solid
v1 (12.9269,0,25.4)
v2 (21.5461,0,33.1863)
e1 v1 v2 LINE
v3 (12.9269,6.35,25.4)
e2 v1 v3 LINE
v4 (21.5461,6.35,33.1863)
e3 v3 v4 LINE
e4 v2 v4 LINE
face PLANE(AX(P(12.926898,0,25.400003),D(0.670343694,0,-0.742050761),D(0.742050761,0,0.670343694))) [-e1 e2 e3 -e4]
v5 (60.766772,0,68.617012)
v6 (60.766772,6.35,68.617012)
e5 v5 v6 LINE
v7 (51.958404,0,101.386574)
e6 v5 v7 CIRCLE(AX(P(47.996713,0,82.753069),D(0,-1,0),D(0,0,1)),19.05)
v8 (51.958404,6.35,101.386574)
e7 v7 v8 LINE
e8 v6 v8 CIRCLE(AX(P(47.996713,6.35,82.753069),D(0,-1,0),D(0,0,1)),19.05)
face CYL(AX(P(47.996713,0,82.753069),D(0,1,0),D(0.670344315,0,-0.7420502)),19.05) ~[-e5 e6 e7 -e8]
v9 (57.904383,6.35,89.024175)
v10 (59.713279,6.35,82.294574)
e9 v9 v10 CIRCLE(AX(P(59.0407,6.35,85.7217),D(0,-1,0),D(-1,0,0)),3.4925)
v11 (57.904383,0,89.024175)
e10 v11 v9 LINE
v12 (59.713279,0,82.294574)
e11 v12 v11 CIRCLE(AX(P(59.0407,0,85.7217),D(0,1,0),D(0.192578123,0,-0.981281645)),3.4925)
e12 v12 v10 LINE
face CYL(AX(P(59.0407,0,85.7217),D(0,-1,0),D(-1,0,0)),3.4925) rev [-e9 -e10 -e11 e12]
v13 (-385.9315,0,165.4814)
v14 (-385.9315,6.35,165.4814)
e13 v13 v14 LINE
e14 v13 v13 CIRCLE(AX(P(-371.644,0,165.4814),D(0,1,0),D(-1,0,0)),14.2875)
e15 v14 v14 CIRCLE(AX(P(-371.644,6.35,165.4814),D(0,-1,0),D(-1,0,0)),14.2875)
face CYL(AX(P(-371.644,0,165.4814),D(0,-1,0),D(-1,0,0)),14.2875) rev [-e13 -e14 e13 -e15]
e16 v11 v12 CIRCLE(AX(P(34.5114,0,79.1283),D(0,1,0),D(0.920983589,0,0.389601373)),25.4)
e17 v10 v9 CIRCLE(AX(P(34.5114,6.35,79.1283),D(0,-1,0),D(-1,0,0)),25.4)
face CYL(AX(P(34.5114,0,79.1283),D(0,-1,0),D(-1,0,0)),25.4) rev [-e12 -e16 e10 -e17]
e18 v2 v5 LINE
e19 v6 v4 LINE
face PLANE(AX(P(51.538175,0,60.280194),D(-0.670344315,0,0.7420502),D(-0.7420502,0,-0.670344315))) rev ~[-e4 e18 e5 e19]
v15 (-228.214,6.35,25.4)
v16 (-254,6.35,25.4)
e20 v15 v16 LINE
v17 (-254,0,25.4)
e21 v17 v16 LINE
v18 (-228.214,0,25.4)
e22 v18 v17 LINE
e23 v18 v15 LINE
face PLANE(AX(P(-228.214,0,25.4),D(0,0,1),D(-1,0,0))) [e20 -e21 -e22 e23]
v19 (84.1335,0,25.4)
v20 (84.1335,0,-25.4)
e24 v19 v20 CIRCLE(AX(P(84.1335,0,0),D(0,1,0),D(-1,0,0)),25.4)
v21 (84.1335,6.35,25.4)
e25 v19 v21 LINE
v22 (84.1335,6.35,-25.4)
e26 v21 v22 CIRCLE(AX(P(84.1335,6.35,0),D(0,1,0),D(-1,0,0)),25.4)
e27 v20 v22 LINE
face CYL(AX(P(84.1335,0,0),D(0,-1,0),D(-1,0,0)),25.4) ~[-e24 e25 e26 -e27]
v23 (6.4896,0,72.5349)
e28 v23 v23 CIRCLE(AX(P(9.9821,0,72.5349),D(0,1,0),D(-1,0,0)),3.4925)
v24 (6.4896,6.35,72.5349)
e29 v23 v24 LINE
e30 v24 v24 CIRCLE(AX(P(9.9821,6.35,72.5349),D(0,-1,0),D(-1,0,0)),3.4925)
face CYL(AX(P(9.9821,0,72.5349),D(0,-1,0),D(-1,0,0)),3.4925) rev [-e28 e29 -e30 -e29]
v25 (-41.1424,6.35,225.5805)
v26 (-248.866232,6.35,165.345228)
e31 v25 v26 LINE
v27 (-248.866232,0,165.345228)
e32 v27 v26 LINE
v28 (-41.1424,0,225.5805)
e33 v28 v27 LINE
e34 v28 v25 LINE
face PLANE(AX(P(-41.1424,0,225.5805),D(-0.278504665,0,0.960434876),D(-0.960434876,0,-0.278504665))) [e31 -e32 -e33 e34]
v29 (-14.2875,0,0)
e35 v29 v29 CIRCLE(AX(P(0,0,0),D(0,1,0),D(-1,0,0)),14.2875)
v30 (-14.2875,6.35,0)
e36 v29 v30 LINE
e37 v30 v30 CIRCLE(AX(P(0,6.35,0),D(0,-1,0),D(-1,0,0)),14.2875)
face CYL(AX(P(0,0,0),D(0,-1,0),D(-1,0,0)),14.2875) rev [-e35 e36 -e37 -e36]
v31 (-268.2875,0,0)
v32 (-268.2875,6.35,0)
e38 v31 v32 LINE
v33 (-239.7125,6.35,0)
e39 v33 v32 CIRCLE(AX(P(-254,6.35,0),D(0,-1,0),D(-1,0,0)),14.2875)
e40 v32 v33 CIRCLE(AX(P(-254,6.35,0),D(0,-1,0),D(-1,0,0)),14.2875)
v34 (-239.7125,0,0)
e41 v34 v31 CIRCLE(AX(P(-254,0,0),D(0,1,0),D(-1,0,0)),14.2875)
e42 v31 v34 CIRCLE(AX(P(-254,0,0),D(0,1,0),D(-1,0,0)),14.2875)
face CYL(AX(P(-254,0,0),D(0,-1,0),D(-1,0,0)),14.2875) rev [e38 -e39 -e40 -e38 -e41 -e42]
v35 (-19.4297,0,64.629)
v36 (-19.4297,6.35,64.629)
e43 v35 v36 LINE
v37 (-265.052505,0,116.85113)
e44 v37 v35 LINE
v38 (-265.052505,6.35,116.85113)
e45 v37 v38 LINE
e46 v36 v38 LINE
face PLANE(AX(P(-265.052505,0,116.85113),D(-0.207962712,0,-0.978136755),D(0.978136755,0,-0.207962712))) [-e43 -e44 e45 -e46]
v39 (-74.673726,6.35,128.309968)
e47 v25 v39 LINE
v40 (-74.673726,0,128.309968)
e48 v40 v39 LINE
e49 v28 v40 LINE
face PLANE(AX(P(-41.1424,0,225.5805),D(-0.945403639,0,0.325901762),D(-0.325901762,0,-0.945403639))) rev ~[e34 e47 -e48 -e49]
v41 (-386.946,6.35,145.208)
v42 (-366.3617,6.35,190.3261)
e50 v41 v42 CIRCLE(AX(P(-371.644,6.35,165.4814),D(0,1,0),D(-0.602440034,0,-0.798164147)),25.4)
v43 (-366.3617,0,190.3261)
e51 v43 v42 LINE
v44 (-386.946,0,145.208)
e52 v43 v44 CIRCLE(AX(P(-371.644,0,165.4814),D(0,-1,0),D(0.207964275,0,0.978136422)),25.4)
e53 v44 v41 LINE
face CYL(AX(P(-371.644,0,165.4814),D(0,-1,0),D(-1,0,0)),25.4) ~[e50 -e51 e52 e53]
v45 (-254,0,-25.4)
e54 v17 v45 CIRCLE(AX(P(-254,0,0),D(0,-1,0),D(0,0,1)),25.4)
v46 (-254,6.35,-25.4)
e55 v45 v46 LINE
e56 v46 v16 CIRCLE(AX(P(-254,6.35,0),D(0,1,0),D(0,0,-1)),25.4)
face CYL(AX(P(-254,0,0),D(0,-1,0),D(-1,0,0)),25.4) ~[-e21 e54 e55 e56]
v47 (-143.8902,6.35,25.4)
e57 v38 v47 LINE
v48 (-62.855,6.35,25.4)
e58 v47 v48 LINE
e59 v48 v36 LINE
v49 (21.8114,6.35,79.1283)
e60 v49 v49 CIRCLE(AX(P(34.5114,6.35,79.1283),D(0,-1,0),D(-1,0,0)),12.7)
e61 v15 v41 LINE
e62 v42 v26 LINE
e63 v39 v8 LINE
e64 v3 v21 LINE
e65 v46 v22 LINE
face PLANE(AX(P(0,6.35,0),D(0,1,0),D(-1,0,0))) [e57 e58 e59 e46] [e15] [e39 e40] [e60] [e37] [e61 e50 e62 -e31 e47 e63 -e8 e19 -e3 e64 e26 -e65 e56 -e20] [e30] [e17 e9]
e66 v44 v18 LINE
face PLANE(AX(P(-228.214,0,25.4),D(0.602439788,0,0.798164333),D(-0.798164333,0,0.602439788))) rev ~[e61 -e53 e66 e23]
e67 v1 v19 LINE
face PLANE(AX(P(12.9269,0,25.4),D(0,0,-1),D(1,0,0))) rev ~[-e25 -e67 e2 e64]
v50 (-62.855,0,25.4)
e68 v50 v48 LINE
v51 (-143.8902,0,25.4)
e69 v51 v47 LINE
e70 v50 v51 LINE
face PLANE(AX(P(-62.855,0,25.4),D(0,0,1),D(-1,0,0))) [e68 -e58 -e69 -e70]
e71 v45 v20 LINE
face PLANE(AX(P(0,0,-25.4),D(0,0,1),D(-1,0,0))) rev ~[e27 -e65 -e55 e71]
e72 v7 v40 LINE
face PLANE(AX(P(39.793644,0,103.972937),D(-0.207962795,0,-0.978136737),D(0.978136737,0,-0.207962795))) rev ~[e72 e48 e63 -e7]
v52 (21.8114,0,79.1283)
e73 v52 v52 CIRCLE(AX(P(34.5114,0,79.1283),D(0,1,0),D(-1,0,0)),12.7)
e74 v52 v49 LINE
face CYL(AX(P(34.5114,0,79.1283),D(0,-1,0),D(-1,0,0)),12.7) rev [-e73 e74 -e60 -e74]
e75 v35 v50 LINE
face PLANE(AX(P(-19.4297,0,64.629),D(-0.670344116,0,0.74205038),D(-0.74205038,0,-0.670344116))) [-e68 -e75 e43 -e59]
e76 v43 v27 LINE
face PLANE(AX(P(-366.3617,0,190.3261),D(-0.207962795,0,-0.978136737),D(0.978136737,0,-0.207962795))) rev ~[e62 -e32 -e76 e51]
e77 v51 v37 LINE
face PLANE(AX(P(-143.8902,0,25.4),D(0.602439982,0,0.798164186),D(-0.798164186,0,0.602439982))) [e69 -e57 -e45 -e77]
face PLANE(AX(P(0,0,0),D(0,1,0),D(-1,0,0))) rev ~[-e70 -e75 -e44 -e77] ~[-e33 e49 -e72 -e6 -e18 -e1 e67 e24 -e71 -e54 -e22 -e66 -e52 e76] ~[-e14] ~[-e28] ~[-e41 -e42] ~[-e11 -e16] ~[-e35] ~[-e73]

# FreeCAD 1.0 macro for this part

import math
import FreeCAD as App
import Part
import Sketcher
Q = App.Units.Quantity


def edges_at(feature, points):
    """Names of the edges that pass closest to the given points."""
    edges = feature.Shape.Edges
    near = lambda p: min(range(len(edges)), key=lambda i: edges[i].distToShape(Part.Vertex(*p))[0])
    return sorted({f"Edge{near(p) + 1}" for p in points})


def add_polygon(sketch, points):
    """Adds a closed chain of lines whose ends are joined by coincident constraints."""
    first, n = sketch.GeometryCount, len(points)
    for a, b in zip(points, points[1:] + points[:1]):
        sketch.addGeometry(Part.LineSegment(App.Vector(*a, 0), App.Vector(*b, 0)), False)
    for i in range(n):
        sketch.addConstraint(Sketcher.Constraint("Coincident", first + i, 2, first + (i + 1) % n, 1))

doc = App.newDocument("Part")
body = doc.addObject("PartDesign::Body", "Body")

sketch1 = doc.addObject("Sketcher::SketchObject", "Sketch")
body.addObject(sketch1)
sketch1.AttachmentSupport = (doc.XZ_Plane, [""])
sketch1.MapMode = "FlatFace"
sketch1.addGeometry(Part.LineSegment(App.Vector(12.9269, 25.4, 0), App.Vector(84.1335, 25.4, 0)), False)
sketch1.addGeometry(Part.ArcOfCircle(Part.Circle(App.Vector(84.1335, 0, 0), App.Vector(0, 0, 1), 25.4), math.radians(-90), math.radians(90)), False)
sketch1.addGeometry(Part.LineSegment(App.Vector(84.1335, -25.4, 0), App.Vector(-254, -25.4, 0)), False)
sketch1.addGeometry(Part.ArcOfCircle(Part.Circle(App.Vector(-254, 0, 0), App.Vector(0, 0, 1), 25.4), math.radians(90), math.radians(270)), False)
sketch1.addGeometry(Part.LineSegment(App.Vector(-254, 25.4, 0), App.Vector(-228.214, 25.4, 0)), False)
sketch1.addGeometry(Part.LineSegment(App.Vector(-228.214, 25.4, 0), App.Vector(-386.946, 145.208, 0)), False)
sketch1.addGeometry(Part.ArcOfCircle(Part.Circle(App.Vector(-371.644, 165.4814, 0), App.Vector(0, 0, 1), 25.4), math.radians(77.99692), math.radians(232.955147)), False)
sketch1.addGeometry(Part.LineSegment(App.Vector(-366.3617, 190.3261, 0), App.Vector(-248.866227, 165.34525, 0)), False)
sketch1.addGeometry(Part.LineSegment(App.Vector(-248.866232, 165.345228, 0), App.Vector(-41.1424, 225.5805, 0)), False)
sketch1.addGeometry(Part.LineSegment(App.Vector(-41.1424, 225.5805, 0), App.Vector(-74.673726, 128.309968, 0)), False)
sketch1.addGeometry(Part.LineSegment(App.Vector(-74.673726, 128.309968, 0), App.Vector(88.4526, 93.6275, 0)), False)
sketch1.addGeometry(Part.LineSegment(App.Vector(88.4526, 93.6275, 0), App.Vector(21.5461, 33.1863, 0)), False)
sketch1.addGeometry(Part.LineSegment(App.Vector(21.5461, 33.1863, 0), App.Vector(12.926898, 25.400003, 0)), False)
sketch1.addConstraint(Sketcher.Constraint("Tangent", 0, 2, 1, 2))
sketch1.addConstraint(Sketcher.Constraint("Tangent", 1, 1, 2, 1))
sketch1.addConstraint(Sketcher.Constraint("Tangent", 2, 2, 3, 2))
sketch1.addConstraint(Sketcher.Constraint("Tangent", 3, 1, 4, 1))
sketch1.addConstraint(Sketcher.Constraint("Coincident", 4, 2, 5, 1))
sketch1.addConstraint(Sketcher.Constraint("Tangent", 5, 2, 6, 2))
sketch1.addConstraint(Sketcher.Constraint("Tangent", 6, 1, 7, 1))
sketch1.addConstraint(Sketcher.Constraint("Coincident", 7, 2, 8, 1))
sketch1.addConstraint(Sketcher.Constraint("Coincident", 8, 2, 9, 1))
sketch1.addConstraint(Sketcher.Constraint("Coincident", 9, 2, 10, 1))
sketch1.addConstraint(Sketcher.Constraint("Coincident", 10, 2, 11, 1))
sketch1.addConstraint(Sketcher.Constraint("Coincident", 11, 2, 12, 1))
sketch1.addConstraint(Sketcher.Constraint("Coincident", 12, 2, 0, 1))
sketch1.addConstraint(Sketcher.Constraint("Horizontal", 0))
sketch1.addConstraint(Sketcher.Constraint("Horizontal", 2))
sketch1.addConstraint(Sketcher.Constraint("Horizontal", 4))
sketch1.addConstraint(Sketcher.Constraint("Equal", 1, 3))
sketch1.addConstraint(Sketcher.Constraint("Equal", 3, 6))
sketch1.addConstraint(Sketcher.Constraint("PointOnObject", 1, 3, -1))
sketch1.addConstraint(Sketcher.Constraint("Parallel", 7, 10))
sketch1.addConstraint(Sketcher.Constraint("Parallel", 11, 12))
sketch1.addConstraint(Sketcher.Constraint("Radius", 1, Q("1 in")))
sketch1.addConstraint(Sketcher.Constraint("DistanceX", 3, 3, -1, 1, Q("10 in")))
sketch1.addConstraint(Sketcher.Constraint("Angle", 8, Q("16.171 deg")))
sketch1.addConstraint(Sketcher.Constraint("Angle", 9, Q("-109.0202 deg")))
sketch1.addConstraint(Sketcher.Constraint("Distance", 8, Q("8.515 in")))
sketch1.addConstraint(Sketcher.Constraint("DistanceX", 0, 1, 0, 2, Q("2.8034 in")))
sketch1.addConstraint(Sketcher.Constraint("DistanceX", 4, 1, 4, 2, Q("1.0152 in")))
sketch1.addConstraint(Sketcher.Constraint("DistanceX", 6, 3, 1, 3, Q("17.944 in")))
sketch1.addConstraint(Sketcher.Constraint("DistanceY", 10, 2, 8, 2, Q("5.195 in")))
sketch1.addConstraint(Sketcher.Constraint("Distance", 7, Q("4.7292 in")))
sketch1.addConstraint(Sketcher.Constraint("Distance", 9, Q("4.0507 in")))
sketch1.addConstraint(Sketcher.Constraint("Distance", 12, Q("0.4573 in")))
sketch1.addConstraint(Sketcher.Constraint("DistanceX", 2, 2, 2, 1, Q("338.1335 mm")))
sketch1.addConstraint(Sketcher.Constraint("DistanceX", 5, 2, -1, 1, Q("15.2341 in")))
sketch1.addConstraint(Sketcher.Constraint("DistanceY", 7, 2, 6, 1, Q("0.9835 in")))
pad1 = doc.addObject("PartDesign::Pad", "Pad")
body.addObject(pad1)
pad1.Profile = sketch1
pad1.Length = Q("0.25 in")
pad1.Reversed = True

sketch2 = doc.addObject("Sketcher::SketchObject", "Sketch001")
body.addObject(sketch2)
sketch2.AttachmentSupport = (doc.XZ_Plane, [""])
sketch2.MapMode = "FlatFace"
sketch2.addGeometry(Part.Circle(App.Vector(0, 0, 0), App.Vector(0, 0, 1), 14.2875), False)
add_polygon(sketch2, [(-19.4297, 64.629), (-62.855, 25.4), (-143.8902, 25.4), (-265.052505, 116.85113)])
sketch2.addGeometry(Part.Circle(App.Vector(9.9821, 72.5349, 0), App.Vector(0, 0, 1), 3.4925), False)
sketch2.addGeometry(Part.ArcOfCircle(Part.Circle(App.Vector(59.0407, 85.7217, 0), App.Vector(0, 0, 1), 3.4925), math.radians(108.987336), math.radians(281.103279)), False)
sketch2.addGeometry(Part.ArcOfCircle(Part.Circle(App.Vector(34.5114, 79.1283, 0), App.Vector(0, 0, 1), 25.4), math.radians(7.160917), math.radians(22.929698)), False)
sketch2.addGeometry(Part.Circle(App.Vector(-254, 0, 0), App.Vector(0, 0, 1), 14.2875), False)
sketch2.addGeometry(Part.Circle(App.Vector(34.5114, 79.1283, 0), App.Vector(0, 0, 1), 12.7), False)
sketch2.addGeometry(Part.Circle(App.Vector(-371.644, 165.4814, 0), App.Vector(0, 0, 1), 14.2875), False)
sketch2.addConstraint(Sketcher.Constraint("Coincident", 6, 1, 7, 2))
sketch2.addConstraint(Sketcher.Constraint("Coincident", 7, 1, 6, 2))
sketch2.addConstraint(Sketcher.Constraint("Horizontal", 2))
sketch2.addConstraint(Sketcher.Constraint("Coincident", 0, 3, -1, 1))
sketch2.addConstraint(Sketcher.Constraint("Coincident", 9, 3, 7, 3))
sketch2.addConstraint(Sketcher.Constraint("Equal", 5, 6))
sketch2.addConstraint(Sketcher.Constraint("Equal", 0, 8))
sketch2.addConstraint(Sketcher.Constraint("Equal", 8, 10))
sketch2.addConstraint(Sketcher.Constraint("PointOnObject", 8, 3, -1))
sketch2.addConstraint(Sketcher.Constraint("Diameter", 9, Q("1 in")))
sketch2.addConstraint(Sketcher.Constraint("Radius", 7, Q("1 in")))
sketch2.addConstraint(Sketcher.Constraint("Diameter", 0, Q("1.125 in")))
sketch2.addConstraint(Sketcher.Constraint("Diameter", 5, Q("0.275 in")))
sketch2.addConstraint(Sketcher.Constraint("DistanceX", 8, 3, -1, 1, Q("10 in")))
sketch2.addConstraint(Sketcher.Constraint("DistanceY", -1, 1, 1, 2, Q("1 in")))
sketch2.addConstraint(Sketcher.Constraint("DistanceX", -1, 1, 5, 3, Q("0.393 in")))
sketch2.addConstraint(Sketcher.Constraint("DistanceX", 3, 2, 5, 3, Q("10.8281339 in")))
sketch2.addConstraint(Sketcher.Constraint("DistanceX", 2, 2, 2, 1, Q("81.0352 mm")))
sketch2.addConstraint(Sketcher.Constraint("DistanceY", -1, 1, 5, 3, Q("2.8557 in")))
sketch2.addConstraint(Sketcher.Constraint("DistanceX", 1, 2, -1, 1, Q("2.4746 in")))
sketch2.addConstraint(Sketcher.Constraint("DistanceX", -1, 1, 6, 1, Q("2.2797 in")))
sketch2.addConstraint(Sketcher.Constraint("DistanceY", -1, 1, 6, 1, Q("3.5049 in")))
sketch2.addConstraint(Sketcher.Constraint("DistanceY", 5, 3, 10, 3, Q("3.6593 in")))
sketch2.addConstraint(Sketcher.Constraint("DistanceY", 7, 3, 6, 1, Q("0.3896 in")))
sketch2.addConstraint(Sketcher.Constraint("DistanceX", 7, 3, 7, 1, Q("0.9922 in")))
sketch2.addConstraint(Sketcher.Constraint("Distance", 1, Q("58.5207 mm")))
sketch2.addConstraint(Sketcher.Constraint("Distance", 3, Q("151.8012 mm")))
sketch2.addConstraint(Sketcher.Constraint("Distance", 4, Q("251.113 mm")))
sketch2.addConstraint(Sketcher.Constraint("DistanceX", 10, 3, -1, 1, Q("371.644 mm")))
pocket1 = doc.addObject("PartDesign::Pocket", "Pocket")
body.addObject(pocket1)
pocket1.Profile = sketch2
pocket1.Type = "ThroughAll"
doc.recompute()

fillet = doc.addObject("PartDesign::Fillet", "Fillet")
body.addObject(fillet)
fillet.Base = (pocket1, edges_at(pocket1, [(88.453, 3.175, 93.627)]))
fillet.Radius = Q("0.75 in")

doc.recompute()
